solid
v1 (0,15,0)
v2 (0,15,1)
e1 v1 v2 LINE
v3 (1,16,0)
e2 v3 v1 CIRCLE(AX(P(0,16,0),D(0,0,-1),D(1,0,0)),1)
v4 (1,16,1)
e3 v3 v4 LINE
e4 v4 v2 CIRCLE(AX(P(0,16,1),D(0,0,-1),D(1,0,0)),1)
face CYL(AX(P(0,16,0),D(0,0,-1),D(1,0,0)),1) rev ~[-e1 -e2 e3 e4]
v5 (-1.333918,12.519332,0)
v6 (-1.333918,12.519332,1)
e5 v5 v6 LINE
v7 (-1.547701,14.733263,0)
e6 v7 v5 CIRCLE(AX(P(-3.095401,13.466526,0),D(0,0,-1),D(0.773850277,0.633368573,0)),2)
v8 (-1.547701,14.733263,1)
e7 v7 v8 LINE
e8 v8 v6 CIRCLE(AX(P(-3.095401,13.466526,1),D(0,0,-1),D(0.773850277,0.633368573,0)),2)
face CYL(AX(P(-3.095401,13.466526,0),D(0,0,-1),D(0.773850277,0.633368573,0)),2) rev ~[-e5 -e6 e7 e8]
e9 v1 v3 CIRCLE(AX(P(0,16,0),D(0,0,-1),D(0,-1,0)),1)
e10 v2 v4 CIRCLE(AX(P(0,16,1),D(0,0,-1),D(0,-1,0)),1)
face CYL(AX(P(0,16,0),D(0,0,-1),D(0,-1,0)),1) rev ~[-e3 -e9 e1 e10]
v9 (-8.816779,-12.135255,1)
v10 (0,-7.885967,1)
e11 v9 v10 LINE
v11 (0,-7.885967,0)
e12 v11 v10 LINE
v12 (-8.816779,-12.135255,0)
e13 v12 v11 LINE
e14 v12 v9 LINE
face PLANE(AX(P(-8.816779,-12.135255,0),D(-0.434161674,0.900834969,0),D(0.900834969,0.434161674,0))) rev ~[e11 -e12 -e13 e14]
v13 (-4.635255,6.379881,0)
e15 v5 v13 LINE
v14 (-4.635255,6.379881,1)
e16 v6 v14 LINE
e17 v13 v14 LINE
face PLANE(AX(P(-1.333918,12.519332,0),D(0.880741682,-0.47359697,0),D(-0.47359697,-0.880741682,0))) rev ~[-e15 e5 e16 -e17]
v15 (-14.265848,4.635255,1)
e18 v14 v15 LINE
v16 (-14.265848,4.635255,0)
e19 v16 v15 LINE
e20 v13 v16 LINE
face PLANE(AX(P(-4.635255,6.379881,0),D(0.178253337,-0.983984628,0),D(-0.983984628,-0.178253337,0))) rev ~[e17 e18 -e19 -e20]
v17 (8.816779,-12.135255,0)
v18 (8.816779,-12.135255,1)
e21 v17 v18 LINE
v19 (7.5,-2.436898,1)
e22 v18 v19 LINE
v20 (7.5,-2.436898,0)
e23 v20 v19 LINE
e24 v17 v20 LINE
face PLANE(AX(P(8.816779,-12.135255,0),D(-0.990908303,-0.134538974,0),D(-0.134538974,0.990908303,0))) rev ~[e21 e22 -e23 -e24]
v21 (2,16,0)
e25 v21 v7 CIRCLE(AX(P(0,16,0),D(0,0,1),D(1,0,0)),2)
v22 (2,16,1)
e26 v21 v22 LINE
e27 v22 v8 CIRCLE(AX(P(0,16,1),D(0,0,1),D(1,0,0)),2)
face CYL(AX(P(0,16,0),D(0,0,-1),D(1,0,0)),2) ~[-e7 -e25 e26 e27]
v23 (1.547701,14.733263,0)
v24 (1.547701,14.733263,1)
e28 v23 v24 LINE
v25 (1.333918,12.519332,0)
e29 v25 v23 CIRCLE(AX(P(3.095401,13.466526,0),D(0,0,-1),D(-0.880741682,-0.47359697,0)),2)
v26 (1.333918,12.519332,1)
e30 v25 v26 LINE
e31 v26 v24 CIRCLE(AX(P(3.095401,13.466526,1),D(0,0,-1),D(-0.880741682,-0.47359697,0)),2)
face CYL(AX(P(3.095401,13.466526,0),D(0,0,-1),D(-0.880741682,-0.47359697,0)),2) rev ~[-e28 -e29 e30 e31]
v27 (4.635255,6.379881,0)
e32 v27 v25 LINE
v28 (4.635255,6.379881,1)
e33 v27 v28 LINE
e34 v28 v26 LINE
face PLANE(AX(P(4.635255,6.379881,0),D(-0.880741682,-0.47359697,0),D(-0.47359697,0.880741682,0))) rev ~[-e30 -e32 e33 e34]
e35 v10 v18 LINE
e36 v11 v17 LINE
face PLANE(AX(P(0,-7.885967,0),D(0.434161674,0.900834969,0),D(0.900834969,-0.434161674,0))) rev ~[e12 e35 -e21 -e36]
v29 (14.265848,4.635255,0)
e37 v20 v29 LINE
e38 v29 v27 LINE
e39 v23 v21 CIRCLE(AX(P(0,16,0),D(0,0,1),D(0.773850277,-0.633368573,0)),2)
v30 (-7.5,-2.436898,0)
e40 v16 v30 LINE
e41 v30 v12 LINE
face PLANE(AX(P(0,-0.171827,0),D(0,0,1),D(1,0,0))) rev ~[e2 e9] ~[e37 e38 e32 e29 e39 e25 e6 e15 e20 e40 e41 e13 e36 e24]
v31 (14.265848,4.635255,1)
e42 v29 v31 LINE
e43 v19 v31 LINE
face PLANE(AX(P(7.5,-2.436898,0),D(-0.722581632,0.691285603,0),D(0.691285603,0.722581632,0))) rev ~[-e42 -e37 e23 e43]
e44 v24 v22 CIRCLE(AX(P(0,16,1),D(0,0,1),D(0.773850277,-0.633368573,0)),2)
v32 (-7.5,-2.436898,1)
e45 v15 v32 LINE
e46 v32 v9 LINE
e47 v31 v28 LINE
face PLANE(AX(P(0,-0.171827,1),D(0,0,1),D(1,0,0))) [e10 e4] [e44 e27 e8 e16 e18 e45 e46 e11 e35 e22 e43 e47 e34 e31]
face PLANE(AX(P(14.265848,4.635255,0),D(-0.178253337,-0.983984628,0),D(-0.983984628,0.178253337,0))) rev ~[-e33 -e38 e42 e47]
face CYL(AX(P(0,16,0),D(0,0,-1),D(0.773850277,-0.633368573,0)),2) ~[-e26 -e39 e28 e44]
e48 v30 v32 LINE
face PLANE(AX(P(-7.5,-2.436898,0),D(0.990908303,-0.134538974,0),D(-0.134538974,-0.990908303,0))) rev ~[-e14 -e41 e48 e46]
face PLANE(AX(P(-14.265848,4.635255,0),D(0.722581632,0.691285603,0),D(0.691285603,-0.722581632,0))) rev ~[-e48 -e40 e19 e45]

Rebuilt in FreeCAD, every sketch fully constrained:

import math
import FreeCAD as App
import Part
import Sketcher

doc = App.newDocument("Part")
body = doc.addObject("PartDesign::Body", "Body")

# Sketch on XY plane
sketch1 = body.newObject("Sketcher::SketchObject", "Sketch")
sketch1.AttachmentSupport = (doc.getObject("XY_Plane"), [""])
sketch1.MapMode = "FlatFace"
sketch1.addGeometry([
    Part.LineSegment(App.Vector(4.6, 6.4, 0), App.Vector(1.3, 12.5, 0)),  # 0
    Part.ArcOfCircle(Part.Circle(App.Vector(3.1, 13.5, 0), App.Vector(0, 0, 1), 2), math.radians(141), math.radians(208)),  # 1
    Part.ArcOfCircle(Part.Circle(App.Vector(0, 16, 0), App.Vector(0, 0, 1), 2), math.radians(-39), math.radians(0)),  # 2
    Part.ArcOfCircle(Part.Circle(App.Vector(0, 16, 0), App.Vector(0, 0, 1), 2), math.radians(0), math.radians(219)),  # 3
    Part.ArcOfCircle(Part.Circle(App.Vector(-3.1, 13.5, 0), App.Vector(0, 0, 1), 2), math.radians(-28), math.radians(39)),  # 4
    Part.LineSegment(App.Vector(-1.3, 12.5, 0), App.Vector(-4.6, 6.4, 0)),  # 5
    Part.LineSegment(App.Vector(-4.6, 6.4, 0), App.Vector(-14.3, 4.6, 0)),  # 6
    Part.LineSegment(App.Vector(-14.3, 4.6, 0), App.Vector(-7.5, -2.4, 0)),  # 7
    Part.LineSegment(App.Vector(-7.5, -2.4, 0), App.Vector(-8.8, -12.1, 0)),  # 8
    Part.LineSegment(App.Vector(-8.8, -12.1, 0), App.Vector(0, -7.9, 0)),  # 9
    Part.LineSegment(App.Vector(0, -7.9, 0), App.Vector(8.8, -12.1, 0)),  # 10
    Part.LineSegment(App.Vector(8.8, -12.1, 0), App.Vector(7.5, -2.4, 0)),  # 11
    Part.LineSegment(App.Vector(7.5, -2.4, 0), App.Vector(14.3, 4.6, 0)),  # 12
    Part.LineSegment(App.Vector(14.3, 4.6, 0), App.Vector(4.6, 6.4, 0)),  # 13
    Part.ArcOfCircle(Part.Circle(App.Vector(0, 16, 0), App.Vector(0, 0, 1), 1), math.radians(0), math.radians(270)),  # 14
    Part.ArcOfCircle(Part.Circle(App.Vector(0, 16, 0), App.Vector(0, 0, 1), 1), math.radians(-90), math.radians(0)),  # 15
], False)
sketch1.addConstraint([
    Sketcher.Constraint("Tangent", 0, 2, 1, 2),
    Sketcher.Constraint("Tangent", 1, 1, 2, 1),
    Sketcher.Constraint("Tangent", 2, 2, 3, 1),
    Sketcher.Constraint("Tangent", 3, 2, 4, 2),
    Sketcher.Constraint("Tangent", 4, 1, 5, 1),
    Sketcher.Constraint("Coincident", 5, 2, 6, 1),
    Sketcher.Constraint("Coincident", 6, 2, 7, 1),
    Sketcher.Constraint("Coincident", 7, 2, 8, 1),
    Sketcher.Constraint("Coincident", 8, 2, 9, 1),
    Sketcher.Constraint("Coincident", 9, 2, 10, 1),
    Sketcher.Constraint("Coincident", 10, 2, 11, 1),
    Sketcher.Constraint("Coincident", 11, 2, 12, 1),
    Sketcher.Constraint("Coincident", 12, 2, 13, 1),
    Sketcher.Constraint("Coincident", 13, 2, 0, 1),
    Sketcher.Constraint("Tangent", 14, 1, 15, 2),
    Sketcher.Constraint("Coincident", 15, 1, 14, 2),
    Sketcher.Constraint("Coincident", 14, 3, 2, 3),
    Sketcher.Constraint("Equal", 1, 2),
    Sketcher.Constraint("Equal", 2, 3),
    Sketcher.Constraint("Equal", 3, 4),
    Sketcher.Constraint("Symmetric", 1, 3, 4, 3, -2),
    Sketcher.Constraint("Symmetric", 8, 2, 10, 2, -2),
    Sketcher.Constraint("Symmetric", 7, 2, 11, 2, -2),
    Sketcher.Constraint("Symmetric", 6, 2, 12, 2, -2),
    Sketcher.Constraint("Symmetric", 5, 2, 13, 2, -2),
    Sketcher.Constraint("PointOnObject", 9, 2, -2),
    Sketcher.Constraint("PointOnObject", 15, 1, -2),
    Sketcher.Constraint("Horizontal", 15, 3, 2, 2),
    Sketcher.Constraint("Horizontal", 2, 2, 14, 1),
    Sketcher.Constraint("Equal", 6, 7),
    Sketcher.Constraint("Equal", 7, 8),
    Sketcher.Constraint("Equal", 8, 9),
    Sketcher.Constraint("Radius", 1, 2.0),
    Sketcher.Constraint("Radius", 14, 1.0),
    Sketcher.Constraint("DistanceY", -1, 1, 2, 3, 16.0),
    Sketcher.Constraint("DistanceX", 7, 2, 11, 2, 15.0),
    Sketcher.Constraint("DistanceX", -1, 1, 1, 3, 3.095401),
    Sketcher.Constraint("DistanceY", 9, 2, 0, 2, 20.405298),
    Sketcher.Constraint("Distance", 6, 9.787341),
    Sketcher.Constraint("DistanceY", -1, 1, 0, 2, 12.519332),
    Sketcher.Constraint("DistanceY", -1, 1, 5, 2, 6.379881),
    Sketcher.Constraint("DistanceX", 8, 2, -1, 1, 8.816779),
])
pad1 = body.newObject("PartDesign::Pad", "Pad")
pad1.Profile = sketch1
pad1.Length = 1

doc.recompute()
